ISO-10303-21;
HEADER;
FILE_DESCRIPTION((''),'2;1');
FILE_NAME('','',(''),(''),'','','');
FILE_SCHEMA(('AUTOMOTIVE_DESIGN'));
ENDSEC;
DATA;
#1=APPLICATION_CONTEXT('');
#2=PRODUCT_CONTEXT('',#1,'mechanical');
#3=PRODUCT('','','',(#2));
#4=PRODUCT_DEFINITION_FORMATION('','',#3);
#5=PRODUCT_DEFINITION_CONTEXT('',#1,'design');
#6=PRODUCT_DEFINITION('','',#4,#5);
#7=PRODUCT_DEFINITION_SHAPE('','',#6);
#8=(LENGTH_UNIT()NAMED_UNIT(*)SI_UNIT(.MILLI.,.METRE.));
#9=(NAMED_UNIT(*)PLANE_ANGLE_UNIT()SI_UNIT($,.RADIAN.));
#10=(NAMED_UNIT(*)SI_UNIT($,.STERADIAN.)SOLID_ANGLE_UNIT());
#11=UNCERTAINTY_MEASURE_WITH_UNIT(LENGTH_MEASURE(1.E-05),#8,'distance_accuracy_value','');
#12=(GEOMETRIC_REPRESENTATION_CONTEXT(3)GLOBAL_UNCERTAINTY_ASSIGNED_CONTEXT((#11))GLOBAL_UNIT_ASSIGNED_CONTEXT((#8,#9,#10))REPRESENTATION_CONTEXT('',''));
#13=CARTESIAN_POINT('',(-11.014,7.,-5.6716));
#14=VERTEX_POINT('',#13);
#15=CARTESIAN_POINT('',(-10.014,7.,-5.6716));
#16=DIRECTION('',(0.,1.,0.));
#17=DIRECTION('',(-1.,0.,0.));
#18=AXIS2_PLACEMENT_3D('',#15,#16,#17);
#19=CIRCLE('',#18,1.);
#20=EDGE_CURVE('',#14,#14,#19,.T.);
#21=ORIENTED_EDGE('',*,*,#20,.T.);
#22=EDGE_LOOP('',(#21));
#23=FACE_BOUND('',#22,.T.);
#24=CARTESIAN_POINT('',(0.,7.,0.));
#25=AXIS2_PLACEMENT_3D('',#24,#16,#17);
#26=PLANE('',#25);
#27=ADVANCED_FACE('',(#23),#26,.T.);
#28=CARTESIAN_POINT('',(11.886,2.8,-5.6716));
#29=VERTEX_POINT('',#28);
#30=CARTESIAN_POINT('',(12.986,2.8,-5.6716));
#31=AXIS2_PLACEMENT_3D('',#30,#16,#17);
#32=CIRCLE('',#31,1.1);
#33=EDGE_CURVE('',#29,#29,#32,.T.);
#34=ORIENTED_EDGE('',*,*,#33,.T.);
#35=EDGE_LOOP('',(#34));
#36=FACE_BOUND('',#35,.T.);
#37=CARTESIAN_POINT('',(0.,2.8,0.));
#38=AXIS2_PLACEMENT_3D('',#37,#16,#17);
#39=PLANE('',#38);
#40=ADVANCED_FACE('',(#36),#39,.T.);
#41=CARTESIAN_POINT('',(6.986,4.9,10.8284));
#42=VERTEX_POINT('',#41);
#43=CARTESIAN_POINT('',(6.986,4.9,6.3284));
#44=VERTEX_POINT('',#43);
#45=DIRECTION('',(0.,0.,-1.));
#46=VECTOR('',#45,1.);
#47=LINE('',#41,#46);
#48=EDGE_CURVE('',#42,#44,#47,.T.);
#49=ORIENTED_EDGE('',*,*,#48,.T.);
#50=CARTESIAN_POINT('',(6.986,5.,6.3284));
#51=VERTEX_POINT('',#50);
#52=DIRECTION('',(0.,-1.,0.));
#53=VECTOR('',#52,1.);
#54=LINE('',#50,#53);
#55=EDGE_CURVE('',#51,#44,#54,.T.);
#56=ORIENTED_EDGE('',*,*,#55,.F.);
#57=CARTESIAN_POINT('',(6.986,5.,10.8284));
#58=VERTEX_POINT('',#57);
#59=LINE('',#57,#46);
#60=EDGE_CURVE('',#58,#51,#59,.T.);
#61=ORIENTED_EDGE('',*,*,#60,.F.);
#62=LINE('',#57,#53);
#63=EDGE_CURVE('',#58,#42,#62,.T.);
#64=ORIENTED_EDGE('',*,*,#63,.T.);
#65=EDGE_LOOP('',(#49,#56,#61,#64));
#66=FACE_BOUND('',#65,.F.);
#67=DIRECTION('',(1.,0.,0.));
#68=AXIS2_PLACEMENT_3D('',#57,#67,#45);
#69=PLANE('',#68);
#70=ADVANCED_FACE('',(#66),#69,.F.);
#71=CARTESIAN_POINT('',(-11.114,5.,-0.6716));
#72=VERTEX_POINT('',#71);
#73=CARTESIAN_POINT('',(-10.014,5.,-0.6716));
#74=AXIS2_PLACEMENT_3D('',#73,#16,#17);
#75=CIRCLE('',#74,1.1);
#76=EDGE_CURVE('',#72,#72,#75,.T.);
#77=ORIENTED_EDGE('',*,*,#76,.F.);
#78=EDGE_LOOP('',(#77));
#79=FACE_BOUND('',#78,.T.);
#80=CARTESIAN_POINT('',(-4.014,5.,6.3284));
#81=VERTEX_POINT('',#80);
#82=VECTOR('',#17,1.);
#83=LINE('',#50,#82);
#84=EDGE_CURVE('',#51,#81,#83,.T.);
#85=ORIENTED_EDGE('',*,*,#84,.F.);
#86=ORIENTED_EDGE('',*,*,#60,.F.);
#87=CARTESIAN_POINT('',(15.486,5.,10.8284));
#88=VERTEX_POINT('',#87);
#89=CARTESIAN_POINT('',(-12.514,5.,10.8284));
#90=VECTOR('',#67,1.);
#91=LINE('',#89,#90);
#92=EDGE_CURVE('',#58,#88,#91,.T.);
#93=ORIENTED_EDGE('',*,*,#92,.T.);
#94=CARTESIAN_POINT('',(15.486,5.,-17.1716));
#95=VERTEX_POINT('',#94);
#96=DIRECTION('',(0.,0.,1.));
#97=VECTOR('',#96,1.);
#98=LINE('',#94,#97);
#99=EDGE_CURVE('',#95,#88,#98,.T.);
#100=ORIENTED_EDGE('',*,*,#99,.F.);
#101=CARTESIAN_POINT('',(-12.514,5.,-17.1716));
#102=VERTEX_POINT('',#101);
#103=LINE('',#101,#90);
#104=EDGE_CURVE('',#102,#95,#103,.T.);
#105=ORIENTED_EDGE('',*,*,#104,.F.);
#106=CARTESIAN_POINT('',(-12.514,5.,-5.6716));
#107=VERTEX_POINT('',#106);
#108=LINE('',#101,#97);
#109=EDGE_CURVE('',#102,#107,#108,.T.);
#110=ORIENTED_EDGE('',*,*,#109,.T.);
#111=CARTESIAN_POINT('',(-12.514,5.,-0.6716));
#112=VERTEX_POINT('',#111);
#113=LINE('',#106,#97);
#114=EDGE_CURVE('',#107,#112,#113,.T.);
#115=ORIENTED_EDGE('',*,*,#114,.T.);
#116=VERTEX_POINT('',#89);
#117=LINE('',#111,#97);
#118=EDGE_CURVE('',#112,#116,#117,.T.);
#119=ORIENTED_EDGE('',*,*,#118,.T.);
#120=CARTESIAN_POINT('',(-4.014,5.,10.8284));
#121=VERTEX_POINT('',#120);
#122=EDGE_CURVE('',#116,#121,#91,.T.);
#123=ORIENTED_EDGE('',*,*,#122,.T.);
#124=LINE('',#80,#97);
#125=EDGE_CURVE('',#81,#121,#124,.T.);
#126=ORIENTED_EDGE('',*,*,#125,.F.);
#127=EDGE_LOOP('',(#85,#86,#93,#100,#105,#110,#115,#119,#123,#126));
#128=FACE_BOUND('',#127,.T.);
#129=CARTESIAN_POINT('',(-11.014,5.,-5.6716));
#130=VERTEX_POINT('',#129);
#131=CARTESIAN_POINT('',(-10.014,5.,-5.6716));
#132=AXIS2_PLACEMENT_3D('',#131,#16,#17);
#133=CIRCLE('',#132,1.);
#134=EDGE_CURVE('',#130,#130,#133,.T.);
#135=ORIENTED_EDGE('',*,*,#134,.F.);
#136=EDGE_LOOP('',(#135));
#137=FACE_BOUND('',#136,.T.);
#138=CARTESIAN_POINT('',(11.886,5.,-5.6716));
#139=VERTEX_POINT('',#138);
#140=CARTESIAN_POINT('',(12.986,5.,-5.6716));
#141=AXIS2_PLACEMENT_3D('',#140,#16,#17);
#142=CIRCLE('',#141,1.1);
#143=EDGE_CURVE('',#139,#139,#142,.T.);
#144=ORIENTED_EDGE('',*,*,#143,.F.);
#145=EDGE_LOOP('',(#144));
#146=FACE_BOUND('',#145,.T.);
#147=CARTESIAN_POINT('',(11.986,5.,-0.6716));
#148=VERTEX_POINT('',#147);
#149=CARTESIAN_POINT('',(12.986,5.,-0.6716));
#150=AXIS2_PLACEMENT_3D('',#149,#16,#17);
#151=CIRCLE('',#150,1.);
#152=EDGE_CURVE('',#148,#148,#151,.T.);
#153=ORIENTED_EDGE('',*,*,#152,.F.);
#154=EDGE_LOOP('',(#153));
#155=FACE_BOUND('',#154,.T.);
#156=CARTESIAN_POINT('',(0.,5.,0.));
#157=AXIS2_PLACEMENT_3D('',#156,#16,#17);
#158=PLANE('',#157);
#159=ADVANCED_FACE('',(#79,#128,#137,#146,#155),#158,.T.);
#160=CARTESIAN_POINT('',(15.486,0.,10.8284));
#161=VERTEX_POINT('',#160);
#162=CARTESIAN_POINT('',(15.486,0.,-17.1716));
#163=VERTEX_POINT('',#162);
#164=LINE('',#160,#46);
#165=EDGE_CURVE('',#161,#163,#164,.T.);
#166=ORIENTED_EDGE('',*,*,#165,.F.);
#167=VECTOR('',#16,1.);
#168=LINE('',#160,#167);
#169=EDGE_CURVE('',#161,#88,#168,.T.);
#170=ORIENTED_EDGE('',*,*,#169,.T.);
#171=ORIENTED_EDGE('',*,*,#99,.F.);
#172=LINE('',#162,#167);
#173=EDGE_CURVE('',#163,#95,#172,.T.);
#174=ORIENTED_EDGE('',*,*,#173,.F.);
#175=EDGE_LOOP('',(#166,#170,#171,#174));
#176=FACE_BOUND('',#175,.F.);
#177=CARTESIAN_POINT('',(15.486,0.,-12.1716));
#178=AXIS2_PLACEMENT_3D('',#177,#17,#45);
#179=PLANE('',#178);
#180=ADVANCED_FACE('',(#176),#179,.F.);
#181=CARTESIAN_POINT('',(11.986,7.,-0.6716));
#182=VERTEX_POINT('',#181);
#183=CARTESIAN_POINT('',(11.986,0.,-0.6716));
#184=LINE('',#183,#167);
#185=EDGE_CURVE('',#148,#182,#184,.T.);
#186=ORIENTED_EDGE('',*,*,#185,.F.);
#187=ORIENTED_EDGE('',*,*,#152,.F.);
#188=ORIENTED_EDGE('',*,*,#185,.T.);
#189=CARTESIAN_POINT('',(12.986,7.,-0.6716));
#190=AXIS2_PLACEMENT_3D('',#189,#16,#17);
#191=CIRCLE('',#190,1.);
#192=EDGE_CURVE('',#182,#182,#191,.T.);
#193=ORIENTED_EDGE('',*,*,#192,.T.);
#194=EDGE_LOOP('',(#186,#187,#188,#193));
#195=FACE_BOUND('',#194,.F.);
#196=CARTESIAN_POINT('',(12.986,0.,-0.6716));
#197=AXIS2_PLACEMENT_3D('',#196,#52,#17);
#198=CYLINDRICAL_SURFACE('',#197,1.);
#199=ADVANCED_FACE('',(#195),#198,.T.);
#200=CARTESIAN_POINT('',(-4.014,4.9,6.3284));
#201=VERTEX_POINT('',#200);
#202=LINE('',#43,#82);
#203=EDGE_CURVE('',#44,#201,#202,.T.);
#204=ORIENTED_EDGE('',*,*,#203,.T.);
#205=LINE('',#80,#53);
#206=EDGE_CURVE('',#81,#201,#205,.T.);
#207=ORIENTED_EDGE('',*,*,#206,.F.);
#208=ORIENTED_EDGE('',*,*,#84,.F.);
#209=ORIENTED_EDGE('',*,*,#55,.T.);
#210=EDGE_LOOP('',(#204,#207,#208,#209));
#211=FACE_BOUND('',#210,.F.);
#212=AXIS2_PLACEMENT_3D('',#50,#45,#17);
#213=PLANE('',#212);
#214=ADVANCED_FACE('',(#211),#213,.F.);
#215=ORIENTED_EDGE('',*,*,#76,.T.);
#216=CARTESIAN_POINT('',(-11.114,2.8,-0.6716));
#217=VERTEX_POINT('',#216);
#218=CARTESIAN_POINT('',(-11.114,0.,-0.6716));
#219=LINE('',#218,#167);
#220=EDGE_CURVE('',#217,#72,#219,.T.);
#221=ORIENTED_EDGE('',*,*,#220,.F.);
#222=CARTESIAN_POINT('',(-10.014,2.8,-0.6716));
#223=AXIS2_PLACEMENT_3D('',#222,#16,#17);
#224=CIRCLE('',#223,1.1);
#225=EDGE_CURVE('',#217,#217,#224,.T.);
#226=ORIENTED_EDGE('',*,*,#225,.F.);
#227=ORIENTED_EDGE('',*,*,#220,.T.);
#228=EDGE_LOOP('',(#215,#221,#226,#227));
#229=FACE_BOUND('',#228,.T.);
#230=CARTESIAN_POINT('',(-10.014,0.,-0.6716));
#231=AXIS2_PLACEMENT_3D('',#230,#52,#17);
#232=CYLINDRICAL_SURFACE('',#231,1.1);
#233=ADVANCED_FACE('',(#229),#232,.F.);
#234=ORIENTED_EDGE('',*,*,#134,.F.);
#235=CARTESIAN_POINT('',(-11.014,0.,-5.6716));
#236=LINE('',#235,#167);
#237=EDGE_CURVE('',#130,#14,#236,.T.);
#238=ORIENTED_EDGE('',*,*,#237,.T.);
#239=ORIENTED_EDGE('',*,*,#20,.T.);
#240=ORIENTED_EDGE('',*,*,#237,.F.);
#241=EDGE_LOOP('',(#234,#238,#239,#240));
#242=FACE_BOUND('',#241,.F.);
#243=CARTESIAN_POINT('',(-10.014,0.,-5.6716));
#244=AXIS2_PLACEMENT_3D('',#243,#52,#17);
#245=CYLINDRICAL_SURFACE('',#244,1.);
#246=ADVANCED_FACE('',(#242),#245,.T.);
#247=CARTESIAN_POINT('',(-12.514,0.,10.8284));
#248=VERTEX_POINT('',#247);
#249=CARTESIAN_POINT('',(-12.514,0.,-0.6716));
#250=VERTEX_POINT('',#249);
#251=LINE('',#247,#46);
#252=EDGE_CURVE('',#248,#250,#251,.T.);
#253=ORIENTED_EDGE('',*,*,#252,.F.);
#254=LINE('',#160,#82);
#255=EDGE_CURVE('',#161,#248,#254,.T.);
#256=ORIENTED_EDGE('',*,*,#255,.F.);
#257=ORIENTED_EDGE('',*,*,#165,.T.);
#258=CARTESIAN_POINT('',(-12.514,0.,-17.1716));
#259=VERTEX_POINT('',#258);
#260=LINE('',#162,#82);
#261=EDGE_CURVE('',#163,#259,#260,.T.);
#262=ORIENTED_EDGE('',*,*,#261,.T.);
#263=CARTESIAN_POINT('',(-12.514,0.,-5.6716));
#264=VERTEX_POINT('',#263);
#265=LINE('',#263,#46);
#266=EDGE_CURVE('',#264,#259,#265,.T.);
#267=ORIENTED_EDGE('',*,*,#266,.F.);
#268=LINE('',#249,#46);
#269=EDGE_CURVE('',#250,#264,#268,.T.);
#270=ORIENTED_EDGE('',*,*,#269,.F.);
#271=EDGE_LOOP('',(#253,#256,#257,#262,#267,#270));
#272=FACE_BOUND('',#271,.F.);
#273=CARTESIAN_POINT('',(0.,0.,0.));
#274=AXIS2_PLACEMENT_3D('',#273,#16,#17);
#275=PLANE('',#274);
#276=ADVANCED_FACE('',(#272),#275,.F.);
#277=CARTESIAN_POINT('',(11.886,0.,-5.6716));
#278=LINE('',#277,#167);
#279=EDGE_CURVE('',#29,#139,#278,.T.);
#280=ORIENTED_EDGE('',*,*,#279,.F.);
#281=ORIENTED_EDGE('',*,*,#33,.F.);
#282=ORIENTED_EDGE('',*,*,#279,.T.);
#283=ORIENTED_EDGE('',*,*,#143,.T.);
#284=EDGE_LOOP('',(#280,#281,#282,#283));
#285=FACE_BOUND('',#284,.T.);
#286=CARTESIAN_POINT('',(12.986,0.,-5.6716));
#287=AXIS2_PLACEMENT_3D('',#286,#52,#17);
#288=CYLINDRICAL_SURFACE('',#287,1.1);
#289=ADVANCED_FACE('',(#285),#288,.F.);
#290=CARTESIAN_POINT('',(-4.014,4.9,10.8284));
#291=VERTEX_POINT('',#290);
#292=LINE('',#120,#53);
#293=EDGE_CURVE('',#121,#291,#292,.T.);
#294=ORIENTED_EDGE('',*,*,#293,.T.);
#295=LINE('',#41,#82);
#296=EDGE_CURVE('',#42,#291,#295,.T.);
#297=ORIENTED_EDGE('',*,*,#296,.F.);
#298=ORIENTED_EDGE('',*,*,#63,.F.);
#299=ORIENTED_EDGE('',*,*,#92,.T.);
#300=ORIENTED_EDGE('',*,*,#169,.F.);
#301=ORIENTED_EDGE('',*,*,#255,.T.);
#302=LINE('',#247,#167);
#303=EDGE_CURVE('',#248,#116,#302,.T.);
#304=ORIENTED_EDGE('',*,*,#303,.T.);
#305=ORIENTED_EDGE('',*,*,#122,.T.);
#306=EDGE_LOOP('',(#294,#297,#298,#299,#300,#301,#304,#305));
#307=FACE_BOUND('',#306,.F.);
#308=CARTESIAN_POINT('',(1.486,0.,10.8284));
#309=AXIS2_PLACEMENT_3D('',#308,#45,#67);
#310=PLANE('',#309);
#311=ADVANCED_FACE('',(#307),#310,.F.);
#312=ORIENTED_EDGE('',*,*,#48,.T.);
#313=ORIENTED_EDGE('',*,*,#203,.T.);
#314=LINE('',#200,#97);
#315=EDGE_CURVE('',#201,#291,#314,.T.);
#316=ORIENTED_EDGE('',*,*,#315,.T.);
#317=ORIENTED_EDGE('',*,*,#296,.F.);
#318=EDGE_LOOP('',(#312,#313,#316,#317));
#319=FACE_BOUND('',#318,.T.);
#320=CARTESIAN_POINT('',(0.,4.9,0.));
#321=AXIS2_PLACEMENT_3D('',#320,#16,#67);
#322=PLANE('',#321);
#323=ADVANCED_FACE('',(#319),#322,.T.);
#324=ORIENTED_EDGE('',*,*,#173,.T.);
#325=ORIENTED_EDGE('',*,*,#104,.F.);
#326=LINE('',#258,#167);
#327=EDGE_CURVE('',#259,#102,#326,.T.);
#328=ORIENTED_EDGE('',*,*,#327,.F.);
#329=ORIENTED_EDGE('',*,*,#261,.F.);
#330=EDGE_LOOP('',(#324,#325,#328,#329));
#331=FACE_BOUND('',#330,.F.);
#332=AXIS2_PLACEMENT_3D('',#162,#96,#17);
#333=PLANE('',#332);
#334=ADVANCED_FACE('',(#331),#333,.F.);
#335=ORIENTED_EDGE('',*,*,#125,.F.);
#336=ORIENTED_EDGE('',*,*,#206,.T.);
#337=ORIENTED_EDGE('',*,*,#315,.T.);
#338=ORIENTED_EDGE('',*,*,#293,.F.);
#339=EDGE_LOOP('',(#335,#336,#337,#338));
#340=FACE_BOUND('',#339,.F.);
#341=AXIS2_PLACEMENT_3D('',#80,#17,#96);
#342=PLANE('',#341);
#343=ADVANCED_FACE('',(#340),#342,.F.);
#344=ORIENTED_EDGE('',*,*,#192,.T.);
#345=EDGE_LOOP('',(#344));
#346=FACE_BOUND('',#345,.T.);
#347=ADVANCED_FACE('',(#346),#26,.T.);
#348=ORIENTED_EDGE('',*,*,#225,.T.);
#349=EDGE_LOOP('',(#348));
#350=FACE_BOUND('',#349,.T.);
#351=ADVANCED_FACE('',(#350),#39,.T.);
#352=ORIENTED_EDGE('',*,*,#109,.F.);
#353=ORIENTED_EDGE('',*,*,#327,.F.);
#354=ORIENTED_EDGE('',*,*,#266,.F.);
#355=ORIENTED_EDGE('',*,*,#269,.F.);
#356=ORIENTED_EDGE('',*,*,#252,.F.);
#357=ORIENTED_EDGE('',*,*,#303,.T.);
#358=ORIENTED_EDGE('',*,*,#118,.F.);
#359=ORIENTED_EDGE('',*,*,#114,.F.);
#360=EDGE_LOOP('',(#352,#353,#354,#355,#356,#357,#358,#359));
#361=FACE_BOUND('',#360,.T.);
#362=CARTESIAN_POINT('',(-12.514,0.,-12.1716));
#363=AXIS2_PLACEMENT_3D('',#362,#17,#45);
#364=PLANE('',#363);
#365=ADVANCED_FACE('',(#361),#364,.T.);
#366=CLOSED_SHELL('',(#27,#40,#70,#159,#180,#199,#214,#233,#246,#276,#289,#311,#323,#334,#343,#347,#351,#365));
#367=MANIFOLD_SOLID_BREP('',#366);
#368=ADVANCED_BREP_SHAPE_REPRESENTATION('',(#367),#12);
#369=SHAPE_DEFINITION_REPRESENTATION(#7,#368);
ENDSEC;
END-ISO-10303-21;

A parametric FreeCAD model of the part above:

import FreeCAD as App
import Part
import Sketcher

V = App.Vector


def add_polygon(sketch, points):
    """Adds a closed chain of lines whose ends are joined by coincident constraints."""
    first, n = sketch.GeometryCount, len(points)
    for a, b in zip(points, points[1:] + points[:1]):
        sketch.addGeometry(Part.LineSegment(App.Vector(*a, 0), App.Vector(*b, 0)), False)
    for i in range(n):
        sketch.addConstraint(Sketcher.Constraint("Coincident", first + i, 2, first + (i + 1) % n, 1))

doc = App.newDocument("Part")
body = doc.addObject("PartDesign::Body", "Body")

sketch1 = body.newObject("Sketcher::SketchObject", "Sketch")
sketch1.AttachmentSupport = (doc.getObject("XZ_Plane"), [""])
sketch1.MapMode = "FlatFace"
add_polygon(sketch1, [(15.486, -17.1716), (-12.514, -17.1716), (-12.514, -5.6716), (-12.514, -0.6716), (-12.514, 10.8284), (15.486, 10.8284)])
sketch1.addGeometry(Part.Circle(V(12.986, -5.6716, 0), V(0, 0, 1), 1.1), False)
sketch1.addGeometry(Part.Circle(V(12.986, -0.6716, 0), V(0, 0, 1), 1), False)
sketch1.addGeometry(Part.Circle(V(-10.014, -5.6716, 0), V(0, 0, 1), 1), False)
sketch1.addGeometry(Part.Circle(V(-10.014, -0.6716, 0), V(0, 0, 1), 1.1), False)
sketch1.addConstraint([
    Sketcher.Constraint("Horizontal", 0),
    Sketcher.Constraint("Vertical", 1),
    Sketcher.Constraint("Vertical", 2),
    Sketcher.Constraint("Vertical", 3),
    Sketcher.Constraint("Horizontal", 4),
    Sketcher.Constraint("Vertical", 5),
    Sketcher.Constraint("Equal", 7, 8),
    Sketcher.Constraint("Equal", 6, 9),
    Sketcher.Constraint("Horizontal", 6, 3, 8, 3),
    Sketcher.Constraint("Horizontal", 7, 3, 9, 3),
    Sketcher.Constraint("Horizontal", 8, 3, 1, 2),
    Sketcher.Constraint("Horizontal", 9, 3, 2, 2),
    Sketcher.Constraint("Vertical", 6, 3, 7, 3),
    Sketcher.Constraint("Vertical", 8, 3, 9, 3),
    Sketcher.Constraint("Equal", 1, 3),
    Sketcher.Constraint("Equal", 4, 5),
    Sketcher.Constraint("Diameter", 7, 2.0),
    Sketcher.Constraint("Diameter", 6, 2.2),
    Sketcher.Constraint("DistanceX", 0, 2, 0, 1, 28.0),
    Sketcher.Constraint("DistanceY", 2, 1, 2, 2, 5.0),
    Sketcher.Constraint("DistanceX", 0, 2, 8, 3, 2.5),
    Sketcher.Constraint("DistanceX", 7, 3, 4, 2, 2.5),
    Sketcher.Constraint("DistanceX", -1, 1, 6, 3, 12.986),
    Sketcher.Constraint("DistanceY", 6, 3, -1, 1, 5.6716),
])
pad1 = body.newObject("PartDesign::Pad", "Pad")
pad1.Profile = sketch1
pad1.Length = 5
pad1.Reversed = True

sketch2 = body.newObject("Sketcher::SketchObject", "Sketch001")
sketch2.AttachmentSupport = (doc.getObject("XZ_Plane"), [""])
sketch2.MapMode = "FlatFace"
sketch2.addGeometry([
    Part.Circle(V(-10.014, -5.6716, 0), V(0, 0, 1), 1),
    Part.Circle(V(12.986, -0.6716, 0), V(0, 0, 1), 1),
], False)
sketch2.addConstraint([
    Sketcher.Constraint("Equal", 0, 1),
    Sketcher.Constraint("Diameter", 0, 2.0),
    Sketcher.Constraint("DistanceY", 0, 3, 1, 3, 5.0),
    Sketcher.Constraint("DistanceX", 0, 3, 1, 3, 23.0),
    Sketcher.Constraint("DistanceX", 0, 3, -1, 1, 10.014),
    Sketcher.Constraint("DistanceY", 0, 3, -1, 1, 5.6716),
])
pad2 = body.newObject("PartDesign::Pad", "Pad001")
pad2.Profile = sketch2
pad2.Length = 7
pad2.Reversed = True

sketch3 = body.newObject("Sketcher::SketchObject", "Sketch002")
sketch3.AttachmentSupport = (doc.getObject("XZ_Plane"), [""])
sketch3.MapMode = "FlatFace"
sketch3.addGeometry([
    Part.Circle(V(-10.014, -0.6716, 0), V(0, 0, 1), 1.1),
    Part.Circle(V(12.986, -5.6716, 0), V(0, 0, 1), 1.1),
], False)
sketch3.addConstraint([
    Sketcher.Constraint("Equal", 0, 1),
    Sketcher.Constraint("Diameter", 0, 2.2),
    Sketcher.Constraint("DistanceY", 1, 3, 0, 3, 5.0),
    Sketcher.Constraint("DistanceX", 0, 3, 1, 3, 23.0),
    Sketcher.Constraint("DistanceX", 0, 3, -1, 1, 10.014),
    Sketcher.Constraint("DistanceY", 0, 3, -1, 1, 0.6716),
])
pad3 = body.newObject("PartDesign::Pad", "Pad002")
pad3.Profile = sketch3
pad3.Length = 2.8
pad3.Reversed = True

sketch4 = body.newObject("Sketcher::SketchObject", "Sketch003")
sketch4.AttachmentSupport = (doc.getObject("XZ_Plane"), [""])
sketch4.MapMode = "FlatFace"
sketch4.AttachmentOffset = App.Placement(V(0, 0, -5), App.Rotation())
add_polygon(sketch4, [(-4.014, 6.3284), (-4.014, 10.8284), (6.986, 10.8284), (6.986, 6.3284)])
sketch4.addConstraint([
    Sketcher.Constraint("Vertical", 0),
    Sketcher.Constraint("Horizontal", 1),
    Sketcher.Constraint("Vertical", 2),
    Sketcher.Constraint("Horizontal", 3),
    Sketcher.Constraint("DistanceX", 1, 1, 1, 2, 11.0),
    Sketcher.Constraint("DistanceY", 0, 1, 0, 2, 4.5),
    Sketcher.Constraint("DistanceX", 0, 2, -1, 1, 4.014),
    Sketcher.Constraint("DistanceY", -1, 1, 0, 2, 10.8284),
])
pocket1 = body.newObject("PartDesign::Pocket", "Pocket")
pocket1.Profile = sketch4
pocket1.Length = 0.1
pocket1.Reversed = True

doc.recompute()
